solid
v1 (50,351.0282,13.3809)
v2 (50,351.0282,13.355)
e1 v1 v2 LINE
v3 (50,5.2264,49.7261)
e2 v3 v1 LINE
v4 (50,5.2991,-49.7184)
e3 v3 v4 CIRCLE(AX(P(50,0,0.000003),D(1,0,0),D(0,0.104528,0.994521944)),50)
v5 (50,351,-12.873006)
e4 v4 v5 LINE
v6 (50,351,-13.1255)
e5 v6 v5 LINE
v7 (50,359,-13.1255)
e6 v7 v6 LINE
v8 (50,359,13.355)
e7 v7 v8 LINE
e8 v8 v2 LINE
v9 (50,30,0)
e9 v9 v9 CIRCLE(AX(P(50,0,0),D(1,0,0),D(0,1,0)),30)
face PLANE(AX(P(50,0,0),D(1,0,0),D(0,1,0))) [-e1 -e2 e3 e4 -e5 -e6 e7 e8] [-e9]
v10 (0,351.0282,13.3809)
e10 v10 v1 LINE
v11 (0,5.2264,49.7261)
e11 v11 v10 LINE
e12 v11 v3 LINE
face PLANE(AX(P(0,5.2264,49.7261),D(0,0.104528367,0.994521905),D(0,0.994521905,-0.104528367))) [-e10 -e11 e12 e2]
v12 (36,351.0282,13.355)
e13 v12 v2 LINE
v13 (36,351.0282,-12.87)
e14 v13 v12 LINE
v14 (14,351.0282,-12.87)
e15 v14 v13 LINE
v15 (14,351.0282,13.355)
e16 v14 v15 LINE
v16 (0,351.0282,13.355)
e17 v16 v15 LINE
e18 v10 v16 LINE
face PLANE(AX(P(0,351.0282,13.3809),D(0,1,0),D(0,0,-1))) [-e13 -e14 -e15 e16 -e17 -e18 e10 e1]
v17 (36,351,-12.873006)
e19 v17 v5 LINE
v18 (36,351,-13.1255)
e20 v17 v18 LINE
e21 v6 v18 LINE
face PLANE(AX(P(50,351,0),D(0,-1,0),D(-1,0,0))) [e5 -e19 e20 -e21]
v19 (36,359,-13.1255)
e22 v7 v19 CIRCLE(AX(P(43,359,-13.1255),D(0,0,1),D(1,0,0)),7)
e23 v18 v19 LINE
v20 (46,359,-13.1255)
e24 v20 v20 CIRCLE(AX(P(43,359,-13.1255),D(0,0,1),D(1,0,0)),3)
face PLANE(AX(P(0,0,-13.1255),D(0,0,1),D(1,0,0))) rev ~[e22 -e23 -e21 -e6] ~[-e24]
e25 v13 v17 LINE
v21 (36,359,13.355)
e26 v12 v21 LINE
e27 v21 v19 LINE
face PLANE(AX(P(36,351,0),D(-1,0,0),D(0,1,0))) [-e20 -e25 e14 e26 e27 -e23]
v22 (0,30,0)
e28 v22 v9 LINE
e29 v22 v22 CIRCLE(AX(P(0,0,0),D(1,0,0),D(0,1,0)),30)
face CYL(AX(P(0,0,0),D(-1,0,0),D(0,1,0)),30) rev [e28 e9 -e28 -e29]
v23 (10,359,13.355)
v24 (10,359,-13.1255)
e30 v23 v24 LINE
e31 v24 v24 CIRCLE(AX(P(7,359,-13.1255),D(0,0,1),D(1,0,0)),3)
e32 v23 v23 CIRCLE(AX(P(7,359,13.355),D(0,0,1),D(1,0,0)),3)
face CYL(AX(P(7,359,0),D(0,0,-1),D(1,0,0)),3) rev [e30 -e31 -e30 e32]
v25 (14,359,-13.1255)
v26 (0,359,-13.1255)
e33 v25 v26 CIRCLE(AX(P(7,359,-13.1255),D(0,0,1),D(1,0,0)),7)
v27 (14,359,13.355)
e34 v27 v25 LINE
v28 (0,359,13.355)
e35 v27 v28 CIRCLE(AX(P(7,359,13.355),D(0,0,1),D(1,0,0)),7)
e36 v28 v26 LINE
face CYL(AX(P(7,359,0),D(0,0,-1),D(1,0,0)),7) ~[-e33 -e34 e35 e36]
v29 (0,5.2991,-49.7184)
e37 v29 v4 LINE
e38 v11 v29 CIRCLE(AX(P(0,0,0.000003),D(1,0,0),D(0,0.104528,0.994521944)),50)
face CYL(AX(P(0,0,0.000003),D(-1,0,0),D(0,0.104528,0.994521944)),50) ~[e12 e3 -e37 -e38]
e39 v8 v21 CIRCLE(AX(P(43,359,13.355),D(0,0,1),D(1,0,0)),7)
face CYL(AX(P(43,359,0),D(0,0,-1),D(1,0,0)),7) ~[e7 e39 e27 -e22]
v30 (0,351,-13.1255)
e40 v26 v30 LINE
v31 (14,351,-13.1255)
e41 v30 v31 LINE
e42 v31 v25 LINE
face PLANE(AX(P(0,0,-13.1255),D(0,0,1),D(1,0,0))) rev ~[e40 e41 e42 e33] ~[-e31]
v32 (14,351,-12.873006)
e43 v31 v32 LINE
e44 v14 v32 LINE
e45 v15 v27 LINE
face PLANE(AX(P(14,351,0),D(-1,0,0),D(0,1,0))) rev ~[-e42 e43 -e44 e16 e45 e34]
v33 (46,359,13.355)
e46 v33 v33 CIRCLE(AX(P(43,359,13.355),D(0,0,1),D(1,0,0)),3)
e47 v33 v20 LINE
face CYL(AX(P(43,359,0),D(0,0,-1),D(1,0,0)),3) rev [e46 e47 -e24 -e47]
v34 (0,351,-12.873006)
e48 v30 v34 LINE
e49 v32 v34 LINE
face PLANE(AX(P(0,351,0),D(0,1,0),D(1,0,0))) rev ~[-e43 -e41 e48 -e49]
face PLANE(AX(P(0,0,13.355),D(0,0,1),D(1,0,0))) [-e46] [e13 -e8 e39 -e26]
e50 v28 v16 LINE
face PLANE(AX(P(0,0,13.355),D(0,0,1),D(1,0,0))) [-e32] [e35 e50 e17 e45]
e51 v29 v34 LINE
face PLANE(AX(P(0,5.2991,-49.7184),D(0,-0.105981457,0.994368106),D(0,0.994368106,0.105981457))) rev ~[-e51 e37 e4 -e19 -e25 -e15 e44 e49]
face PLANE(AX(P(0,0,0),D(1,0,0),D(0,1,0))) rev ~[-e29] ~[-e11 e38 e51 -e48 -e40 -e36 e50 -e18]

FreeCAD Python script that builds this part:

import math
import FreeCAD as App
import Part
import Sketcher
Q = App.Units.Quantity

doc = App.newDocument("Part")
body = doc.addObject("PartDesign::Body", "Body")

# Sketch on YZ plane
sketch1 = doc.addObject("Sketcher::SketchObject", "Sketch")
body.addObject(sketch1)
sketch1.AttachmentSupport = (doc.YZ_Plane, [""])
sketch1.MapMode = "FlatFace"
sketch1.addGeometry(Part.LineSegment(App.Vector(351.0282, 13.3809, 0), App.Vector(5.2264, 49.7261, 0)), False)
sketch1.addGeometry(Part.ArcOfCircle(Part.Circle(App.Vector(0, 0, 0), App.Vector(0, 0, 1), 50.000003), math.radians(84.000027), math.radians(276.083747)), False)
sketch1.addGeometry(Part.LineSegment(App.Vector(5.2991, -49.7184, 0), App.Vector(351.0282, -12.87, 0)), False)
sketch1.addGeometry(Part.LineSegment(App.Vector(351.0282, -12.87, 0), App.Vector(351.0282, 13.3809, 0)), False)
sketch1.addGeometry(Part.Circle(App.Vector(0, 0, 0), App.Vector(0, 0, 1), 30), False)
sketch1.addConstraint(Sketcher.Constraint("Tangent", 0, 2, 1, 1))
sketch1.addConstraint(Sketcher.Constraint("Tangent", 1, 2, 2, 1))
sketch1.addConstraint(Sketcher.Constraint("Coincident", 2, 2, 3, 1))
sketch1.addConstraint(Sketcher.Constraint("Coincident", 3, 2, 0, 1))
sketch1.addConstraint(Sketcher.Constraint("Vertical", 3))
sketch1.addConstraint(Sketcher.Constraint("Coincident", 1, 3, -1, 1))
sketch1.addConstraint(Sketcher.Constraint("Coincident", 4, 3, -1, 1))
sketch1.addConstraint(Sketcher.Constraint("Diameter", 4, Q("60 mm")))
sketch1.addConstraint(Sketcher.Constraint("Radius", 1, Q("50 mm")))
sketch1.addConstraint(Sketcher.Constraint("Angle", 0, Q("174 deg")))
sketch1.addConstraint(Sketcher.Constraint("DistanceY", 3, 1, 3, 2, Q("26.251 mm")))
sketch1.addConstraint(Sketcher.Constraint("DistanceY", 2, 2, -1, 1, Q("12.87 mm")))
pad1 = doc.addObject("PartDesign::Pad", "Pad")
body.addObject(pad1)
pad1.Profile = sketch1
pad1.Length = 50

# Sketch on XY plane
sketch2 = doc.addObject("Sketcher::SketchObject", "Sketch001")
body.addObject(sketch2)
sketch2.AttachmentSupport = (doc.XY_Plane, [""])
sketch2.MapMode = "FlatFace"
sketch2.addGeometry(Part.LineSegment(App.Vector(36, 351, 0), App.Vector(50, 351, 0)), False)
sketch2.addGeometry(Part.LineSegment(App.Vector(50, 351, 0), App.Vector(50, 359, 0)), False)
sketch2.addGeometry(Part.ArcOfCircle(Part.Circle(App.Vector(43, 359, 0), App.Vector(0, 0, 1), 7), math.radians(0), math.radians(180)), False)
sketch2.addGeometry(Part.LineSegment(App.Vector(36, 359, 0), App.Vector(36, 351, 0)), False)
sketch2.addGeometry(Part.Circle(App.Vector(43, 359, 0), App.Vector(0, 0, 1), 3), False)
sketch2.addGeometry(Part.LineSegment(App.Vector(0, 359, 0), App.Vector(0, 351, 0)), False)
sketch2.addGeometry(Part.LineSegment(App.Vector(0, 351, 0), App.Vector(14, 351, 0)), False)
sketch2.addGeometry(Part.LineSegment(App.Vector(14, 351, 0), App.Vector(14, 359, 0)), False)
sketch2.addGeometry(Part.ArcOfCircle(Part.Circle(App.Vector(7, 359, 0), App.Vector(0, 0, 1), 7), math.radians(0), math.radians(180)), False)
sketch2.addGeometry(Part.Circle(App.Vector(7, 359, 0), App.Vector(0, 0, 1), 3), False)
sketch2.addConstraint(Sketcher.Constraint("Coincident", 0, 2, 1, 1))
sketch2.addConstraint(Sketcher.Constraint("Tangent", 1, 2, 2, 1))
sketch2.addConstraint(Sketcher.Constraint("Tangent", 2, 2, 3, 1))
sketch2.addConstraint(Sketcher.Constraint("Coincident", 3, 2, 0, 1))
sketch2.addConstraint(Sketcher.Constraint("Coincident", 5, 2, 6, 1))
sketch2.addConstraint(Sketcher.Constraint("Coincident", 6, 2, 7, 1))
sketch2.addConstraint(Sketcher.Constraint("Tangent", 7, 2, 8, 1))
sketch2.addConstraint(Sketcher.Constraint("Tangent", 8, 2, 5, 1))
sketch2.addConstraint(Sketcher.Constraint("Horizontal", 0))
sketch2.addConstraint(Sketcher.Constraint("Vertical", 1))
sketch2.addConstraint(Sketcher.Constraint("Vertical", 3))
sketch2.addConstraint(Sketcher.Constraint("Vertical", 5))
sketch2.addConstraint(Sketcher.Constraint("Horizontal", 6))
sketch2.addConstraint(Sketcher.Constraint("Vertical", 7))
sketch2.addConstraint(Sketcher.Constraint("Coincident", 4, 3, 2, 3))
sketch2.addConstraint(Sketcher.Constraint("Coincident", 9, 3, 8, 3))
sketch2.addConstraint(Sketcher.Constraint("Equal", 2, 8))
sketch2.addConstraint(Sketcher.Constraint("Equal", 4, 9))
sketch2.addConstraint(Sketcher.Constraint("PointOnObject", 5, 2, -2))
sketch2.addConstraint(Sketcher.Constraint("Horizontal", 4, 3, 8, 3))
sketch2.addConstraint(Sketcher.Constraint("Horizontal", 3, 2, 5, 2))
sketch2.addConstraint(Sketcher.Constraint("Diameter", 4, Q("6 mm")))
sketch2.addConstraint(Sketcher.Constraint("Radius", 2, Q("7 mm")))
sketch2.addConstraint(Sketcher.Constraint("DistanceY", 1, 1, 1, 2, Q("8 mm")))
sketch2.addConstraint(Sketcher.Constraint("DistanceX", -1, 1, 2, 3, Q("43 mm")))
sketch2.addConstraint(Sketcher.Constraint("DistanceY", -1, 1, 2, 3, Q("359 mm")))
pad2 = doc.addObject("PartDesign::Pad", "Pad001")
body.addObject(pad2)
pad2.Profile = sketch2
pad2.Type = "TwoLengths"
pad2.Length = 13.355
pad2.Length2 = 13.1255

doc.recompute()
